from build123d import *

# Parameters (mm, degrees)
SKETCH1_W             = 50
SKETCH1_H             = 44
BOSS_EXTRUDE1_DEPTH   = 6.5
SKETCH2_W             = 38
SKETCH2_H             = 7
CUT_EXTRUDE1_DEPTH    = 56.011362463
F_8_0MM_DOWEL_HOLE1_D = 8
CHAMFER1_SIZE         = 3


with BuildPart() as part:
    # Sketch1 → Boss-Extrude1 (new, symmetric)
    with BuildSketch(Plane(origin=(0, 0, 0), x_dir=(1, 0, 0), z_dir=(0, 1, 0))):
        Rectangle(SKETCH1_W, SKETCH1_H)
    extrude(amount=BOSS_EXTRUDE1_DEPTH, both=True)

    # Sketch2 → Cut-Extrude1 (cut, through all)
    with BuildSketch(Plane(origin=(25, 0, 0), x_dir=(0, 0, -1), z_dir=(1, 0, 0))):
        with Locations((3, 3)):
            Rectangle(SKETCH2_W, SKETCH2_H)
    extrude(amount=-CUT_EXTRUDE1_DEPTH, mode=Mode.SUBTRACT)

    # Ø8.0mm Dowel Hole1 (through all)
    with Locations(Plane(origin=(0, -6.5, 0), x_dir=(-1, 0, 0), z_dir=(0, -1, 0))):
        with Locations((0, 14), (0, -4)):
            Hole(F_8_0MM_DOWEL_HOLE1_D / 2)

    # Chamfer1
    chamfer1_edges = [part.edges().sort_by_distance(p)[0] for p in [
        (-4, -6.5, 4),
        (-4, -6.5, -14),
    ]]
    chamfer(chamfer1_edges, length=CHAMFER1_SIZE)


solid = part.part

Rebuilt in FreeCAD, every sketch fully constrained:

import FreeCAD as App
import Part
import Sketcher


def edges_at(feature, points):
    """Names of the edges that pass closest to the given points."""
    edges = feature.Shape.Edges
    near = lambda p: min(range(len(edges)), key=lambda i: edges[i].distToShape(Part.Vertex(*p))[0])
    return sorted({f"Edge{near(p) + 1}" for p in points})


def add_polygon(sketch, points):
    """Adds a closed chain of lines whose ends are joined by coincident constraints."""
    first, n = sketch.GeometryCount, len(points)
    for a, b in zip(points, points[1:] + points[:1]):
        sketch.addGeometry(Part.LineSegment(App.Vector(*a, 0), App.Vector(*b, 0)), False)
    for i in range(n):
        sketch.addConstraint(Sketcher.Constraint("Coincident", first + i, 2, first + (i + 1) % n, 1))

doc = App.newDocument("Part")
body = doc.addObject("PartDesign::Body", "Body")

sketch1 = body.newObject("Sketcher::SketchObject", "Sketch")
sketch1.AttachmentSupport = (doc.getObject("XZ_Plane"), [""])
sketch1.MapMode = "FlatFace"
add_polygon(sketch1, [(-25, -22), (-25, 22), (25, 22), (25, -22)])
sketch1.addConstraint(Sketcher.Constraint("Vertical", 0))
sketch1.addConstraint(Sketcher.Constraint("Horizontal", 1))
sketch1.addConstraint(Sketcher.Constraint("Vertical", 2))
sketch1.addConstraint(Sketcher.Constraint("Horizontal", 3))
sketch1.addConstraint(Sketcher.Constraint("Symmetric", 0, 2, 2, 2, -1, 1))
sketch1.addConstraint(Sketcher.Constraint("DistanceX", 1, 1, 1, 2, 50.0))
sketch1.addConstraint(Sketcher.Constraint("DistanceY", 0, 1, 0, 2, 44.0))
pad1 = body.newObject("PartDesign::Pad", "Pad")
pad1.Profile = sketch1
pad1.Length = 13
pad1.Midplane = True

sketch2 = body.newObject("Sketcher::SketchObject", "Sketch001")
sketch2.AttachmentSupport = (doc.getObject("YZ_Plane"), [""])
sketch2.MapMode = "FlatFace"
sketch2.AttachmentOffset = App.Placement(App.Vector(0, 0, 25), App.Rotation())
add_polygon(sketch2, [(6, 16), (0, 16), (0, -22), (6, -22)])
sketch2.addConstraint(Sketcher.Constraint("Horizontal", 0))
sketch2.addConstraint(Sketcher.Constraint("Vertical", 1))
sketch2.addConstraint(Sketcher.Constraint("Horizontal", 2))
sketch2.addConstraint(Sketcher.Constraint("Vertical", 3))
sketch2.addConstraint(Sketcher.Constraint("DistanceX", 0, 2, 0, 1, 7.0))
sketch2.addConstraint(Sketcher.Constraint("DistanceY", 1, 2, 1, 1, 38.0))
sketch2.addConstraint(Sketcher.Constraint("DistanceY", -1, 1, 0, 2, 16.0))
sketch2.addConstraint(Sketcher.Constraint("DistanceX", 0, 2, -1, 1, 0.5))
pocket1 = body.newObject("PartDesign::Pocket", "Pocket")
pocket1.Profile = sketch2
pocket1.Type = "ThroughAll"

sketch3 = body.newObject("Sketcher::SketchObject", "Sketch002")
sketch3.AttachmentSupport = (doc.getObject("XZ_Plane"), [""])
sketch3.MapMode = "FlatFace"
sketch3.AttachmentOffset = App.Placement(App.Vector(0, 0, 6.5), App.Rotation())
sketch3.addGeometry(Part.Circle(App.Vector(0, -14, 0), App.Vector(0, 0, 1), 4), False)
sketch3.addGeometry(Part.Circle(App.Vector(0, 4, 0), App.Vector(0, 0, 1), 4), False)
sketch3.addConstraint(Sketcher.Constraint("Equal", 0, 1))
sketch3.addConstraint(Sketcher.Constraint("PointOnObject", 0, 3, -2))
sketch3.addConstraint(Sketcher.Constraint("PointOnObject", 1, 3, -2))
sketch3.addConstraint(Sketcher.Constraint("Diameter", 0, 8.0))
sketch3.addConstraint(Sketcher.Constraint("DistanceY", 0, 3, -1, 1, 14.0))
sketch3.addConstraint(Sketcher.Constraint("DistanceY", -1, 1, 1, 3, 4.0))
doc.recompute()
hole = body.newObject("PartDesign::Hole", "Hole")
hole.Profile = sketch3
hole.ThreadType = "None"
hole.Diameter = 8
hole.DepthType = "ThroughAll"
doc.recompute()

chamfer = body.newObject("PartDesign::Chamfer", "Chamfer")
chamfer.Base = (hole, edges_at(hole, [(-4, -6.5, 4), (-4, -6.5, -14)]))
chamfer.Size = 3

doc.recompute()
